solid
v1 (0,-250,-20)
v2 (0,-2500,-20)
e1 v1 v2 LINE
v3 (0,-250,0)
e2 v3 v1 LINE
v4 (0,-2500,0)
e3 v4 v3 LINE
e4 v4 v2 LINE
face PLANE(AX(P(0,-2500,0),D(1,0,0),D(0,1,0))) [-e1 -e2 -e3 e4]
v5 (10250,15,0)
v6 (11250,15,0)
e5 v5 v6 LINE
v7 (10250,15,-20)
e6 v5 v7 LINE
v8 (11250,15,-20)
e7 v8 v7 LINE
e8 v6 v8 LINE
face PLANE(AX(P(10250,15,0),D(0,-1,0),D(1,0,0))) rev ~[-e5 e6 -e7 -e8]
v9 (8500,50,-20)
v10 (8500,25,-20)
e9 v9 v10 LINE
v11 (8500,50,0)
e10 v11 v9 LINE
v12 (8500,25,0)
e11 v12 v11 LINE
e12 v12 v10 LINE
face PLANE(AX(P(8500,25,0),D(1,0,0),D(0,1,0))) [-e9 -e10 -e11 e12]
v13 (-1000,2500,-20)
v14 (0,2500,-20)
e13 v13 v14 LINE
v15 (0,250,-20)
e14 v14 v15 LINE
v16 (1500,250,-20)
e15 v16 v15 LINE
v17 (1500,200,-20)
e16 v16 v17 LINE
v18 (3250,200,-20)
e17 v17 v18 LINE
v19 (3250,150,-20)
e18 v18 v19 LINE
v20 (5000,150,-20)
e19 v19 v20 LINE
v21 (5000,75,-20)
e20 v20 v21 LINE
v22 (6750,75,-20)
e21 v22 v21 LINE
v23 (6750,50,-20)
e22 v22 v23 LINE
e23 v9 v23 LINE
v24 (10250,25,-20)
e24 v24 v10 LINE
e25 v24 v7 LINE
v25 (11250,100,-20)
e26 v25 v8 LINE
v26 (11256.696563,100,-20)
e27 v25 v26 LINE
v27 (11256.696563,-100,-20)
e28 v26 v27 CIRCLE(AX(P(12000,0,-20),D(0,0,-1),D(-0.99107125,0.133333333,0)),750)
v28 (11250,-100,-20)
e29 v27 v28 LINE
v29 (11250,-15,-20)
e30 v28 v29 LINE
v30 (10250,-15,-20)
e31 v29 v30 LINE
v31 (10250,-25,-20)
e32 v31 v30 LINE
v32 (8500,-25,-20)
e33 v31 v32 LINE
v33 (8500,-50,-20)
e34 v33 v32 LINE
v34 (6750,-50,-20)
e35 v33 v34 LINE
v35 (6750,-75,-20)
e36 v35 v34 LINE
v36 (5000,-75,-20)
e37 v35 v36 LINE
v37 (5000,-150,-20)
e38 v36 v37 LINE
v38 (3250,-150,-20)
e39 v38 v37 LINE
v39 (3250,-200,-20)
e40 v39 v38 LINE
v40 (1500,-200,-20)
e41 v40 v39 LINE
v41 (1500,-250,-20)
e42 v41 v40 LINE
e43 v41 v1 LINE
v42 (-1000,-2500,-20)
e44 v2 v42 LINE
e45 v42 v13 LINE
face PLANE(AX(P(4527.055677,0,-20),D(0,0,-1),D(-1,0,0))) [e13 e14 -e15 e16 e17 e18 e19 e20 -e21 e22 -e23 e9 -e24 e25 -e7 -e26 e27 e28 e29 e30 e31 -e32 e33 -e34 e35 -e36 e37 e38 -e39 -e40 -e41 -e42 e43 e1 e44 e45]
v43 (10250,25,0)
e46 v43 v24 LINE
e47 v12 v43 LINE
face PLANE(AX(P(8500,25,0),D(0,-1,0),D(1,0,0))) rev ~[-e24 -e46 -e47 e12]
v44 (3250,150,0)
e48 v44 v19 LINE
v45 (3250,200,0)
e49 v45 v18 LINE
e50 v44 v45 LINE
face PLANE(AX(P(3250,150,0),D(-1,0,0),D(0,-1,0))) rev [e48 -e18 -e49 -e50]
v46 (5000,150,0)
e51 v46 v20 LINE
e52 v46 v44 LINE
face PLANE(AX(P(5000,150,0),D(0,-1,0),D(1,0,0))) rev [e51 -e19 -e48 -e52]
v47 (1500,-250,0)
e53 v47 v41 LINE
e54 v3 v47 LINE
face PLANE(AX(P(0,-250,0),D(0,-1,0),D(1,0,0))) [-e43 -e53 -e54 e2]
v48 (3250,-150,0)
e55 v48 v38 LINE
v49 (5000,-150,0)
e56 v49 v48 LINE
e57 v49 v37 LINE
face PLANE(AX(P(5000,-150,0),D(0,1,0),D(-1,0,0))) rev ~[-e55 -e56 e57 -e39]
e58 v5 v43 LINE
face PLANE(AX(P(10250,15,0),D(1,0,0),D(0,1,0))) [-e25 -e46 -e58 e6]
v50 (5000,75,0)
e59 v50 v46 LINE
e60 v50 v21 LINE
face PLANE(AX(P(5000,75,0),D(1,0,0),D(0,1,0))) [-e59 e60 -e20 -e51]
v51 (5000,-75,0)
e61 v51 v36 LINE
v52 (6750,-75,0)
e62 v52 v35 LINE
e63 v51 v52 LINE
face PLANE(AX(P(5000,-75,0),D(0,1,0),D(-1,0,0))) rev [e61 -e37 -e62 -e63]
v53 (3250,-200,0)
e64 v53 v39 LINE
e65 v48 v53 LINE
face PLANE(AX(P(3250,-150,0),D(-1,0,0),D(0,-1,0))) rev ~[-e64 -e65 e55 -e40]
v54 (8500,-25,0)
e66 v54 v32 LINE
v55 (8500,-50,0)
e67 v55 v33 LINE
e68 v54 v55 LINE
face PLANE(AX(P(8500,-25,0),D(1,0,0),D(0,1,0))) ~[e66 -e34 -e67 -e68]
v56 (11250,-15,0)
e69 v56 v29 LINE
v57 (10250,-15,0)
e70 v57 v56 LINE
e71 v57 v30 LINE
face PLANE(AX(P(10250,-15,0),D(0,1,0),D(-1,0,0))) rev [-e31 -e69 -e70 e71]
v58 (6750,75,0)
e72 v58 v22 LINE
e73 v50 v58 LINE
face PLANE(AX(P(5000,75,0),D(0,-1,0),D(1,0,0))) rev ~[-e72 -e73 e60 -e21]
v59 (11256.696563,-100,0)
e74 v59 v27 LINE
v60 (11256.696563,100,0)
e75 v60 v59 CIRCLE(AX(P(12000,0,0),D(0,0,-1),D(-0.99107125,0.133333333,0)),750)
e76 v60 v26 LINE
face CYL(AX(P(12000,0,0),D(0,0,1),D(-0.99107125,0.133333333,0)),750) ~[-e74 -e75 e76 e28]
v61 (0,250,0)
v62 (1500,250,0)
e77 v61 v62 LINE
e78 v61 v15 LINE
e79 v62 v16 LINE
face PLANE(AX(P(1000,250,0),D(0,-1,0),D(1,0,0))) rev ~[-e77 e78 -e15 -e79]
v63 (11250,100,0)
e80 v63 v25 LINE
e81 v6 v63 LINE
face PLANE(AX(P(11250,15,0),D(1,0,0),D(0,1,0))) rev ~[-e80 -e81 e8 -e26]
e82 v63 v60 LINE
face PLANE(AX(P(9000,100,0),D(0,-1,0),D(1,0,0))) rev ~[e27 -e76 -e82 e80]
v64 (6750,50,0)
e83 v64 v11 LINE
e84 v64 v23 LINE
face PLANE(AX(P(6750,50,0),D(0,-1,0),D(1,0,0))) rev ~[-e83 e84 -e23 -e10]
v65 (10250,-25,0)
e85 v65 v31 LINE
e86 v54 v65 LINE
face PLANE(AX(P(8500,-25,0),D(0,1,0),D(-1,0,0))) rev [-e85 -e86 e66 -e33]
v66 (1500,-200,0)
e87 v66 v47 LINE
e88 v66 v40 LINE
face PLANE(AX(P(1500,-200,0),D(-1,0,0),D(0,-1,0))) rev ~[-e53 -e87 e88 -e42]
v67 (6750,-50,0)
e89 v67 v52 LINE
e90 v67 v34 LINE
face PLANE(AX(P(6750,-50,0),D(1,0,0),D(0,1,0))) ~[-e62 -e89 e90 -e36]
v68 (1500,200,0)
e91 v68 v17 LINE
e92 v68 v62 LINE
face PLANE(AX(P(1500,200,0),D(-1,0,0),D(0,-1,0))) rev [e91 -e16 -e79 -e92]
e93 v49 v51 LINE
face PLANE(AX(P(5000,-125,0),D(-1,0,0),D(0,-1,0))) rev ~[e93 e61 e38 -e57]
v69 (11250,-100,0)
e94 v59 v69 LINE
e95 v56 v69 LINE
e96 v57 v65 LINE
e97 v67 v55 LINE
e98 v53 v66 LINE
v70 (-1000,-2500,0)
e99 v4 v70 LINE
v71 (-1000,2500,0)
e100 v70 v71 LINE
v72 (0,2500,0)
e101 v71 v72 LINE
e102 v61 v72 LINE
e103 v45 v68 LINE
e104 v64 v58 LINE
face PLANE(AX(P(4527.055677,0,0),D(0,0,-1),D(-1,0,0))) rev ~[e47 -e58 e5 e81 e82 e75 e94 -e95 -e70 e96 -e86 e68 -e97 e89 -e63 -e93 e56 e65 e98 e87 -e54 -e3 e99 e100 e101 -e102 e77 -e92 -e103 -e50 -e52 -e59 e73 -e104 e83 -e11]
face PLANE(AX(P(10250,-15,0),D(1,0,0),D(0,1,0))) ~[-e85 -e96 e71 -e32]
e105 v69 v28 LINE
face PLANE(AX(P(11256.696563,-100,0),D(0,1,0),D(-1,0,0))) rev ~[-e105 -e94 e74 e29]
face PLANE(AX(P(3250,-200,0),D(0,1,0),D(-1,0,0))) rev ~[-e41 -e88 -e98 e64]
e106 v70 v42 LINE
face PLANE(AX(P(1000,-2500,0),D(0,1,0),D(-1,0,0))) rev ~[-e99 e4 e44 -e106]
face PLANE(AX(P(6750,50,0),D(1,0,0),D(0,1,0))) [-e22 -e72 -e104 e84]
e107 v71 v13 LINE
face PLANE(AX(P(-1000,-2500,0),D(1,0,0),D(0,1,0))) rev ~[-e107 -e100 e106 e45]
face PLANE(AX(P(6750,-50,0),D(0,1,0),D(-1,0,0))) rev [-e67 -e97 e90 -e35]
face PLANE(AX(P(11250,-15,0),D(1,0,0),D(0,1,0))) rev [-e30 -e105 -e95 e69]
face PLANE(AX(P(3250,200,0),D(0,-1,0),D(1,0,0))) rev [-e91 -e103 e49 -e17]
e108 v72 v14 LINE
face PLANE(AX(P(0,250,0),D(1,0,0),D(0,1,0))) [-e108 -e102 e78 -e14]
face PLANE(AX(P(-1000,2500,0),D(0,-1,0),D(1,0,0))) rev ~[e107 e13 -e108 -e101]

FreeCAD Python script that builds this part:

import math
import FreeCAD as App
import Part
import Sketcher
Q = App.Units.Quantity


def add_polygon(sketch, points):
    """Adds a closed chain of lines whose ends are joined by coincident constraints."""
    first, n = sketch.GeometryCount, len(points)
    for a, b in zip(points, points[1:] + points[:1]):
        sketch.addGeometry(Part.LineSegment(App.Vector(*a, 0), App.Vector(*b, 0)), False)
    for i in range(n):
        sketch.addConstraint(Sketcher.Constraint("Coincident", first + i, 2, first + (i + 1) % n, 1))

doc = App.newDocument("Part")
params = doc.addObject("Spreadsheet::Sheet", "Params")
for row, (alias, value) in enumerate([
    ("sketch1_radius", "750 mm"),
    ("sketch1_width", "4000 mm"),
    ("sketch1_width2", "2000 mm"),
    ("sketch1_height", "2250 mm"),
    ("sketch1_height2", "5000 mm"),
    ("pad1_length", "20 mm"),
    ("sketch2_width", "1000 mm"),
    ("sketch2_height", "2250 mm"),
    ("sketch3_width", "3500 mm"),
    ("sketch3_height", "100 mm"),
    ("sketch4_width", "1750 mm"),
    ("sketch4_height", "50 mm"),
    ("sketch5_width", "1750 mm"),
    ("sketch5_height", "75 mm"),
    ("sketch6_width", "1750 mm"),
    ("sketch6_height", "100 mm"),
    ("sketch7_width", "1000 mm"),
    ("sketch7_height", "85 mm"),
], start=1):
    params.set(f"A{row}", alias)
    params.set(f"B{row}", "=" + value)
    params.setAlias(f"B{row}", alias)

body = doc.addObject("PartDesign::Body", "Body")

sketch1 = body.newObject("Sketcher::SketchObject", "Sketch")
sketch1.AttachmentSupport = (doc.getObject("XY_Plane"), [""])
sketch1.MapMode = "FlatFace"
sketch1.addGeometry(Part.LineSegment(App.Vector(5000, 250, 0), App.Vector(1000, 250, 0)), False)
sketch1.addGeometry(Part.LineSegment(App.Vector(1000, 250, 0), App.Vector(1000, 2500, 0)), False)
sketch1.addGeometry(Part.LineSegment(App.Vector(1000, 2500, 0), App.Vector(-1000, 2500, 0)), False)
sketch1.addGeometry(Part.LineSegment(App.Vector(-1000, 2500, 0), App.Vector(-1000, -2500, 0)), False)
sketch1.addGeometry(Part.LineSegment(App.Vector(-1000, -2500, 0), App.Vector(1000, -2500, 0)), False)
sketch1.addGeometry(Part.LineSegment(App.Vector(1000, -2500, 0), App.Vector(1000, -250, 0)), False)
sketch1.addGeometry(Part.LineSegment(App.Vector(1000, -250, 0), App.Vector(5000, -250, 0)), False)
sketch1.addGeometry(Part.LineSegment(App.Vector(5000, -250, 0), App.Vector(5000, -125, 0)), False)
sketch1.addGeometry(Part.LineSegment(App.Vector(5000, -125, 0), App.Vector(9000, -125, 0)), False)
sketch1.addGeometry(Part.LineSegment(App.Vector(9000, -125, 0), App.Vector(9000, -100, 0)), False)
sketch1.addGeometry(Part.LineSegment(App.Vector(9000, -100, 0), App.Vector(11257, -100, 0)), False)
sketch1.addGeometry(Part.ArcOfCircle(Part.Circle(App.Vector(12000, 0, 0), App.Vector(0, 0, 1), 750), math.radians(-172), math.radians(172)), False)
sketch1.addGeometry(Part.LineSegment(App.Vector(11257, 100, 0), App.Vector(9000, 100, 0)), False)
sketch1.addGeometry(Part.LineSegment(App.Vector(9000, 100, 0), App.Vector(9000, 125, 0)), False)
sketch1.addGeometry(Part.LineSegment(App.Vector(9000, 125, 0), App.Vector(5000, 125, 0)), False)
sketch1.addGeometry(Part.LineSegment(App.Vector(5000, 125, 0), App.Vector(5000, 250, 0)), False)
sketch1.addConstraint(Sketcher.Constraint("Coincident", 0, 2, 1, 1))
sketch1.addConstraint(Sketcher.Constraint("Coincident", 1, 2, 2, 1))
sketch1.addConstraint(Sketcher.Constraint("Coincident", 2, 2, 3, 1))
sketch1.addConstraint(Sketcher.Constraint("Coincident", 3, 2, 4, 1))
sketch1.addConstraint(Sketcher.Constraint("Coincident", 4, 2, 5, 1))
sketch1.addConstraint(Sketcher.Constraint("Coincident", 5, 2, 6, 1))
sketch1.addConstraint(Sketcher.Constraint("Coincident", 6, 2, 7, 1))
sketch1.addConstraint(Sketcher.Constraint("Coincident", 7, 2, 8, 1))
sketch1.addConstraint(Sketcher.Constraint("Coincident", 8, 2, 9, 1))
sketch1.addConstraint(Sketcher.Constraint("Coincident", 9, 2, 10, 1))
sketch1.addConstraint(Sketcher.Constraint("Coincident", 10, 2, 11, 1))
sketch1.addConstraint(Sketcher.Constraint("Coincident", 11, 2, 12, 1))
sketch1.addConstraint(Sketcher.Constraint("Coincident", 12, 2, 13, 1))
sketch1.addConstraint(Sketcher.Constraint("Coincident", 13, 2, 14, 1))
sketch1.addConstraint(Sketcher.Constraint("Coincident", 14, 2, 15, 1))
sketch1.addConstraint(Sketcher.Constraint("Coincident", 15, 2, 0, 1))
sketch1.addConstraint(Sketcher.Constraint("Horizontal", 0))
sketch1.addConstraint(Sketcher.Constraint("Vertical", 1))
sketch1.addConstraint(Sketcher.Constraint("Horizontal", 2))
sketch1.addConstraint(Sketcher.Constraint("Vertical", 3))
sketch1.addConstraint(Sketcher.Constraint("Horizontal", 4))
sketch1.addConstraint(Sketcher.Constraint("Vertical", 5))
sketch1.addConstraint(Sketcher.Constraint("Horizontal", 6))
sketch1.addConstraint(Sketcher.Constraint("Vertical", 7))
sketch1.addConstraint(Sketcher.Constraint("Horizontal", 8))
sketch1.addConstraint(Sketcher.Constraint("Vertical", 9))
sketch1.addConstraint(Sketcher.Constraint("Horizontal", 10))
sketch1.addConstraint(Sketcher.Constraint("Horizontal", 12))
sketch1.addConstraint(Sketcher.Constraint("Vertical", 13))
sketch1.addConstraint(Sketcher.Constraint("Horizontal", 14))
sketch1.addConstraint(Sketcher.Constraint("Vertical", 15))
sketch1.addConstraint(Sketcher.Constraint("Symmetric", 1, 2, 3, 2, -1, 1))
sketch1.addConstraint(Sketcher.Constraint("Symmetric", 0, 2, 5, 2, -1))
sketch1.addConstraint(Sketcher.Constraint("Symmetric", 9, 2, 12, 2, -1))
sketch1.addConstraint(Sketcher.Constraint("Symmetric", 7, 2, 14, 2, -1))
sketch1.addConstraint(Sketcher.Constraint("PointOnObject", 11, 3, -1))
sketch1.addConstraint(Sketcher.Constraint("Equal", 6, 8))
sketch1.addConstraint(Sketcher.Constraint("Radius", 11, Q("750 mm")))
sketch1.addConstraint(Sketcher.Constraint("DistanceX", 0, 2, 0, 1, Q("4000 mm")))
sketch1.addConstraint(Sketcher.Constraint("DistanceX", 2, 2, 2, 1, Q("2000 mm")))
sketch1.addConstraint(Sketcher.Constraint("DistanceY", 1, 1, 1, 2, Q("2250 mm")))
sketch1.addConstraint(Sketcher.Constraint("DistanceY", 3, 2, 3, 1, Q("5000 mm")))
sketch1.addConstraint(Sketcher.Constraint("DistanceY", 7, 1, 7, 2, Q("125 mm")))
sketch1.addConstraint(Sketcher.Constraint("DistanceY", 9, 1, 9, 2, Q("25 mm")))
sketch1.addConstraint(Sketcher.Constraint("DistanceX", -1, 1, 11, 3, Q("12000 mm")))
sketch1.setExpression("Constraints[37]", "Params.sketch1_radius")
sketch1.setExpression("Constraints[38]", "Params.sketch1_width")
sketch1.setExpression("Constraints[39]", "Params.sketch1_width2")
sketch1.setExpression("Constraints[40]", "Params.sketch1_height")
sketch1.setExpression("Constraints[41]", "Params.sketch1_height2")
pad1 = body.newObject("PartDesign::Pad", "Pad")
pad1.Profile = sketch1
pad1.setExpression("Length", "Params.pad1_length")
pad1.Reversed = True

sketch2 = body.newObject("Sketcher::SketchObject", "Sketch001")
sketch2.AttachmentSupport = (doc.getObject("XY_Plane"), [""])
sketch2.MapMode = "FlatFace"
add_polygon(sketch2, [(0, 2500), (0, 250), (1000, 250), (1000, 2500)])
add_polygon(sketch2, [(0, -250), (0, -2500), (1000, -2500), (1000, -250)])
sketch2.addConstraint(Sketcher.Constraint("Vertical", 0))
sketch2.addConstraint(Sketcher.Constraint("Horizontal", 1))
sketch2.addConstraint(Sketcher.Constraint("Vertical", 2))
sketch2.addConstraint(Sketcher.Constraint("Horizontal", 3))
sketch2.addConstraint(Sketcher.Constraint("Vertical", 4))
sketch2.addConstraint(Sketcher.Constraint("Horizontal", 5))
sketch2.addConstraint(Sketcher.Constraint("Vertical", 6))
sketch2.addConstraint(Sketcher.Constraint("Horizontal", 7))
sketch2.addConstraint(Sketcher.Constraint("Symmetric", 3, 2, 4, 2, -1, 1))
sketch2.addConstraint(Sketcher.Constraint("Symmetric", 1, 2, 6, 2, -1))
sketch2.addConstraint(Sketcher.Constraint("PointOnObject", 0, 2, -2))
sketch2.addConstraint(Sketcher.Constraint("DistanceX", 1, 1, 1, 2, Q("1000 mm")))
sketch2.addConstraint(Sketcher.Constraint("DistanceY", 0, 2, 0, 1, Q("2250 mm")))
sketch2.addConstraint(Sketcher.Constraint("DistanceY", -1, 1, 0, 2, Q("250 mm")))
sketch2.setExpression("Constraints[19]", "Params.sketch2_width")
sketch2.setExpression("Constraints[20]", "Params.sketch2_height")
pocket1 = body.newObject("PartDesign::Pocket", "Pocket")
pocket1.Profile = sketch2
pocket1.Type = "ThroughAll"

sketch3 = body.newObject("Sketcher::SketchObject", "Sketch002")
sketch3.AttachmentSupport = (doc.getObject("XY_Plane"), [""])
sketch3.MapMode = "FlatFace"
add_polygon(sketch3, [(1500, -250), (5000, -250), (5000, -150), (3250, -150), (3250, -200), (1500, -200)])
sketch3.addConstraint(Sketcher.Constraint("Horizontal", 0))
sketch3.addConstraint(Sketcher.Constraint("Vertical", 1))
sketch3.addConstraint(Sketcher.Constraint("Horizontal", 2))
sketch3.addConstraint(Sketcher.Constraint("Vertical", 3))
sketch3.addConstraint(Sketcher.Constraint("Horizontal", 4))
sketch3.addConstraint(Sketcher.Constraint("Vertical", 5))
sketch3.addConstraint(Sketcher.Constraint("Equal", 2, 4))
sketch3.addConstraint(Sketcher.Constraint("Equal", 3, 5))
sketch3.addConstraint(Sketcher.Constraint("DistanceX", 0, 1, 0, 2, Q("3500 mm")))
sketch3.addConstraint(Sketcher.Constraint("DistanceY", 1, 1, 1, 2, Q("100 mm")))
sketch3.addConstraint(Sketcher.Constraint("DistanceX", -1, 1, 0, 2, Q("5000 mm")))
sketch3.addConstraint(Sketcher.Constraint("DistanceY", 0, 2, -1, 1, Q("250 mm")))
sketch3.setExpression("Constraints[14]", "Params.sketch3_width")
sketch3.setExpression("Constraints[15]", "Params.sketch3_height")
pocket2 = body.newObject("PartDesign::Pocket", "Pocket001")
pocket2.Profile = sketch3
pocket2.Type = "ThroughAll"
doc.recompute()

mirrored = body.newObject("PartDesign::Mirrored", "Mirrored")
mirrored.Originals = [pocket2]
mirrored.MirrorPlane = (doc.getObject("XZ_Plane"), [""])
body.Tip = mirrored

sketch4 = body.newObject("Sketcher::SketchObject", "Sketch003")
sketch4.AttachmentSupport = (doc.getObject("XY_Plane"), [""])
sketch4.MapMode = "FlatFace"
add_polygon(sketch4, [(5000, 125), (5000, 75), (6750, 75), (6750, 125)])
sketch4.addConstraint(Sketcher.Constraint("Vertical", 0))
sketch4.addConstraint(Sketcher.Constraint("Horizontal", 1))
sketch4.addConstraint(Sketcher.Constraint("Vertical", 2))
sketch4.addConstraint(Sketcher.Constraint("Horizontal", 3))
sketch4.addConstraint(Sketcher.Constraint("DistanceX", 1, 1, 1, 2, Q("1750 mm")))
sketch4.addConstraint(Sketcher.Constraint("DistanceY", 0, 2, 0, 1, Q("50 mm")))
sketch4.addConstraint(Sketcher.Constraint("DistanceX", -1, 1, 0, 2, Q("5000 mm")))
sketch4.addConstraint(Sketcher.Constraint("DistanceY", -1, 1, 0, 2, Q("75 mm")))
sketch4.setExpression("Constraints[8]", "Params.sketch4_width")
sketch4.setExpression("Constraints[9]", "Params.sketch4_height")
pocket3 = body.newObject("PartDesign::Pocket", "Pocket002")
pocket3.Profile = sketch4
pocket3.Type = "ThroughAll"
doc.recompute()

mirrored2 = body.newObject("PartDesign::Mirrored", "Mirrored001")
mirrored2.Originals = [pocket3]
mirrored2.MirrorPlane = (doc.getObject("XZ_Plane"), [""])
body.Tip = mirrored2

sketch5 = body.newObject("Sketcher::SketchObject", "Sketch004")
sketch5.AttachmentSupport = (doc.getObject("XY_Plane"), [""])
sketch5.MapMode = "FlatFace"
add_polygon(sketch5, [(6750, 125), (6750, 50), (8500, 50), (8500, 125)])
sketch5.addConstraint(Sketcher.Constraint("Vertical", 0))
sketch5.addConstraint(Sketcher.Constraint("Horizontal", 1))
sketch5.addConstraint(Sketcher.Constraint("Vertical", 2))
sketch5.addConstraint(Sketcher.Constraint("Horizontal", 3))
sketch5.addConstraint(Sketcher.Constraint("DistanceX", 1, 1, 1, 2, Q("1750 mm")))
sketch5.addConstraint(Sketcher.Constraint("DistanceY", 0, 2, 0, 1, Q("75 mm")))
sketch5.addConstraint(Sketcher.Constraint("DistanceX", -1, 1, 0, 2, Q("6750 mm")))
sketch5.addConstraint(Sketcher.Constraint("DistanceY", -1, 1, 0, 2, Q("50 mm")))
sketch5.setExpression("Constraints[8]", "Params.sketch5_width")
sketch5.setExpression("Constraints[9]", "Params.sketch5_height")
pocket4 = body.newObject("PartDesign::Pocket", "Pocket003")
pocket4.Profile = sketch5
pocket4.Type = "ThroughAll"
doc.recompute()

mirrored3 = body.newObject("PartDesign::Mirrored", "Mirrored002")
mirrored3.Originals = [pocket4]
mirrored3.MirrorPlane = (doc.getObject("XZ_Plane"), [""])
body.Tip = mirrored3

sketch6 = body.newObject("Sketcher::SketchObject", "Sketch005")
sketch6.AttachmentSupport = (doc.getObject("XY_Plane"), [""])
sketch6.MapMode = "FlatFace"
add_polygon(sketch6, [(8500, 125), (8500, 25), (10250, 25), (10250, 125)])
sketch6.addConstraint(Sketcher.Constraint("Vertical", 0))
sketch6.addConstraint(Sketcher.Constraint("Horizontal", 1))
sketch6.addConstraint(Sketcher.Constraint("Vertical", 2))
sketch6.addConstraint(Sketcher.Constraint("Horizontal", 3))
sketch6.addConstraint(Sketcher.Constraint("DistanceX", 1, 1, 1, 2, Q("1750 mm")))
sketch6.addConstraint(Sketcher.Constraint("DistanceY", 0, 2, 0, 1, Q("100 mm")))
sketch6.addConstraint(Sketcher.Constraint("DistanceX", -1, 1, 0, 2, Q("8500 mm")))
sketch6.addConstraint(Sketcher.Constraint("DistanceY", -1, 1, 0, 2, Q("25 mm")))
sketch6.setExpression("Constraints[8]", "Params.sketch6_width")
sketch6.setExpression("Constraints[9]", "Params.sketch6_height")
pocket5 = body.newObject("PartDesign::Pocket", "Pocket004")
pocket5.Profile = sketch6
pocket5.Type = "ThroughAll"
doc.recompute()

mirrored4 = body.newObject("PartDesign::Mirrored", "Mirrored003")
mirrored4.Originals = [pocket5]
mirrored4.MirrorPlane = (doc.getObject("XZ_Plane"), [""])
body.Tip = mirrored4

sketch7 = body.newObject("Sketcher::SketchObject", "Sketch006")
sketch7.AttachmentSupport = (doc.getObject("XY_Plane"), [""])
sketch7.MapMode = "FlatFace"
add_polygon(sketch7, [(10250, 100), (10250, 15), (11250, 15), (11250, 100)])
sketch7.addConstraint(Sketcher.Constraint("Vertical", 0))
sketch7.addConstraint(Sketcher.Constraint("Horizontal", 1))
sketch7.addConstraint(Sketcher.Constraint("Vertical", 2))
sketch7.addConstraint(Sketcher.Constraint("Horizontal", 3))
sketch7.addConstraint(Sketcher.Constraint("DistanceX", 1, 1, 1, 2, Q("1000 mm")))
sketch7.addConstraint(Sketcher.Constraint("DistanceY", 0, 2, 0, 1, Q("85 mm")))
sketch7.addConstraint(Sketcher.Constraint("DistanceX", -1, 1, 0, 2, Q("10250 mm")))
sketch7.addConstraint(Sketcher.Constraint("DistanceY", -1, 1, 0, 2, Q("15 mm")))
sketch7.setExpression("Constraints[8]", "Params.sketch7_width")
sketch7.setExpression("Constraints[9]", "Params.sketch7_height")
pocket6 = body.newObject("PartDesign::Pocket", "Pocket005")
pocket6.Profile = sketch7
pocket6.Type = "ThroughAll"
doc.recompute()

mirrored5 = body.newObject("PartDesign::Mirrored", "Mirrored004")
mirrored5.Originals = [pocket6]
mirrored5.MirrorPlane = (doc.getObject("XZ_Plane"), [""])
body.Tip = mirrored5

doc.recompute()
